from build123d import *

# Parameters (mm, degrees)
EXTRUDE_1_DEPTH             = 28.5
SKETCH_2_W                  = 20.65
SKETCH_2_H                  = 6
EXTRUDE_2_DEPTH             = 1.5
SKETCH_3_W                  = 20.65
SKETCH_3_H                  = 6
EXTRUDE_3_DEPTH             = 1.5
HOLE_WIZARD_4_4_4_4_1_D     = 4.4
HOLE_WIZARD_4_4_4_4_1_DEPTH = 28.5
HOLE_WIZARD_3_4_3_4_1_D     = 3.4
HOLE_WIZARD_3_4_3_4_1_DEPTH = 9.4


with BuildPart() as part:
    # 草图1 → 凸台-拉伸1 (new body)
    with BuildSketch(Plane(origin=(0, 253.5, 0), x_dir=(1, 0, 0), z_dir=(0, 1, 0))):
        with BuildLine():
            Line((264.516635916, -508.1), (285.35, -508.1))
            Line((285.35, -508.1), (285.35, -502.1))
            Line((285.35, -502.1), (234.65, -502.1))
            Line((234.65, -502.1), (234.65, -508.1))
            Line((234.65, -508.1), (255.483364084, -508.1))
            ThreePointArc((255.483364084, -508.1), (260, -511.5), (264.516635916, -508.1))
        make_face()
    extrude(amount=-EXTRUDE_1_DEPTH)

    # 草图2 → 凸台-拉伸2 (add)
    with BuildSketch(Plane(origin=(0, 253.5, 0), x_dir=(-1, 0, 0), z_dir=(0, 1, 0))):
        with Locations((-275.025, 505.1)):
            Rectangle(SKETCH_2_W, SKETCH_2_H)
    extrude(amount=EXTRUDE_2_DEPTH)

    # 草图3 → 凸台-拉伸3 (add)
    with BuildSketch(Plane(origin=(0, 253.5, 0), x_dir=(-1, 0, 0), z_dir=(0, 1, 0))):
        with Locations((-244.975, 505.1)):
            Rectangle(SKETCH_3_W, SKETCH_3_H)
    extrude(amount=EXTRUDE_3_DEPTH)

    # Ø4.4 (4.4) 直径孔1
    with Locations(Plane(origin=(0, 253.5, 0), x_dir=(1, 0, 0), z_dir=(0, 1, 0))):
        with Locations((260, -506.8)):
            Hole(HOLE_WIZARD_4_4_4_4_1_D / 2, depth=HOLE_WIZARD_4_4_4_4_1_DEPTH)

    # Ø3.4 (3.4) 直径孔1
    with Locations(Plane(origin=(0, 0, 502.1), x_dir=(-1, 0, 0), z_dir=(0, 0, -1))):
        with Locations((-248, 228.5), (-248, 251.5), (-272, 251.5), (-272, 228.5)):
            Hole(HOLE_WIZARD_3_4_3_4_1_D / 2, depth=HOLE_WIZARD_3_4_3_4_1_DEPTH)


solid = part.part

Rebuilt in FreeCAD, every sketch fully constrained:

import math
import FreeCAD as App
import Part
import Sketcher

V = App.Vector


def add_polygon(sketch, points):
    """Adds a closed chain of lines whose ends are joined by coincident constraints."""
    first, n = sketch.GeometryCount, len(points)
    for a, b in zip(points, points[1:] + points[:1]):
        sketch.addGeometry(Part.LineSegment(App.Vector(*a, 0), App.Vector(*b, 0)), False)
    for i in range(n):
        sketch.addConstraint(Sketcher.Constraint("Coincident", first + i, 2, first + (i + 1) % n, 1))

doc = App.newDocument("Part")
body = doc.addObject("PartDesign::Body", "Body")

sketch1 = body.newObject("Sketcher::SketchObject", "Sketch")
sketch1.AttachmentSupport = (doc.getObject("XZ_Plane"), [""])
sketch1.MapMode = "FlatFace"
sketch1.AttachmentOffset = App.Placement(V(0, 0, -253.5), App.Rotation())
sketch1.addGeometry([
    Part.LineSegment(V(264.5, 508.1, 0), V(285.4, 508.1, 0)),
    Part.LineSegment(V(285.4, 508.1, 0), V(285.4, 502.1, 0)),
    Part.LineSegment(V(285.4, 502.1, 0), V(234.7, 502.1, 0)),
    Part.LineSegment(V(234.7, 502.1, 0), V(234.7, 508.1, 0)),
    Part.LineSegment(V(234.7, 508.1, 0), V(255.5, 508.1, 0)),
    Part.ArcOfCircle(Part.Circle(V(260, 506.8, 0), V(0, 0, 1), 4.7), math.radians(16), math.radians(164)),
], False)
sketch1.addConstraint([
    Sketcher.Constraint("Coincident", 0, 2, 1, 1),
    Sketcher.Constraint("Coincident", 1, 2, 2, 1),
    Sketcher.Constraint("Coincident", 2, 2, 3, 1),
    Sketcher.Constraint("Coincident", 3, 2, 4, 1),
    Sketcher.Constraint("Coincident", 4, 2, 5, 2),
    Sketcher.Constraint("Coincident", 5, 1, 0, 1),
    Sketcher.Constraint("Horizontal", 0),
    Sketcher.Constraint("Vertical", 1),
    Sketcher.Constraint("Horizontal", 2),
    Sketcher.Constraint("Vertical", 3),
    Sketcher.Constraint("Horizontal", 4),
    Sketcher.Constraint("Horizontal", 0, 2, 3, 2),
    Sketcher.Constraint("Equal", 0, 4),
    Sketcher.Constraint("Radius", 5, 4.7),
    Sketcher.Constraint("DistanceY", 1, 2, 1, 1, 6.0),
    Sketcher.Constraint("DistanceX", 2, 2, 2, 1, 50.7),
    Sketcher.Constraint("DistanceX", -1, 1, 5, 3, 260.0),
    Sketcher.Constraint("DistanceY", -1, 1, 5, 3, 506.8),
    Sketcher.Constraint("DistanceY", -1, 1, 0, 2, 508.1),
])
pad1 = body.newObject("PartDesign::Pad", "Pad")
pad1.Profile = sketch1
pad1.Length = 28.5

sketch2 = body.newObject("Sketcher::SketchObject", "Sketch001")
sketch2.AttachmentSupport = (doc.getObject("XZ_Plane"), [""])
sketch2.MapMode = "FlatFace"
sketch2.AttachmentOffset = App.Placement(V(0, 0, -253.5), App.Rotation())
add_polygon(sketch2, [(285, 508), (285, 502), (265, 502), (265, 508)])
sketch2.addConstraint([
    Sketcher.Constraint("Vertical", 0),
    Sketcher.Constraint("Horizontal", 1),
    Sketcher.Constraint("Vertical", 2),
    Sketcher.Constraint("Horizontal", 3),
    Sketcher.Constraint("DistanceY", 0, 2, 0, 1, 6.0),
    Sketcher.Constraint("DistanceX", 1, 2, 1, 1, 20.65),
    Sketcher.Constraint("DistanceY", -1, 1, 0, 2, 502.1),
    Sketcher.Constraint("DistanceX", -1, 1, 1, 2, 264.7),
])
pad2 = body.newObject("PartDesign::Pad", "Pad001")
pad2.Profile = sketch2
pad2.Length = 1.5
pad2.Reversed = True

sketch3 = body.newObject("Sketcher::SketchObject", "Sketch002")
sketch3.AttachmentSupport = (doc.getObject("XZ_Plane"), [""])
sketch3.MapMode = "FlatFace"
sketch3.AttachmentOffset = App.Placement(V(0, 0, -253.5), App.Rotation())
add_polygon(sketch3, [(255, 508), (255, 502), (235, 502), (235, 508)])
sketch3.addConstraint([
    Sketcher.Constraint("Vertical", 0),
    Sketcher.Constraint("Horizontal", 1),
    Sketcher.Constraint("Vertical", 2),
    Sketcher.Constraint("Horizontal", 3),
    Sketcher.Constraint("DistanceY", 0, 2, 0, 1, 6.0),
    Sketcher.Constraint("DistanceX", 1, 2, 1, 1, 20.65),
    Sketcher.Constraint("DistanceX", -1, 1, 0, 2, 255.3),
    Sketcher.Constraint("DistanceY", -1, 1, 0, 2, 502.1),
])
pad3 = body.newObject("PartDesign::Pad", "Pad002")
pad3.Profile = sketch3
pad3.Length = 1.5
pad3.Reversed = True

sketch4 = body.newObject("Sketcher::SketchObject", "Sketch003")
sketch4.AttachmentSupport = (doc.getObject("XZ_Plane"), [""])
sketch4.MapMode = "FlatFace"
sketch4.AttachmentOffset = App.Placement(V(0, 0, -253.5), App.Rotation())
sketch4.addGeometry(Part.Circle(V(260, 506.8, 0), V(0, 0, 1), 2.2), False)
sketch4.addConstraint([
    Sketcher.Constraint("Diameter", 0, 4.4),
    Sketcher.Constraint("DistanceX", -1, 1, 0, 3, 260.0),
    Sketcher.Constraint("DistanceY", -1, 1, 0, 3, 506.8),
])
doc.recompute()
hole = body.newObject("PartDesign::Hole", "Hole")
hole.Profile = sketch4
hole.ThreadType = "None"
hole.Diameter = 4.4
hole.DepthType = "Dimension"
hole.Depth = 28.5
hole.DrillPoint = "Flat"
hole.Reversed = True

sketch5 = body.newObject("Sketcher::SketchObject", "Sketch004")
sketch5.AttachmentSupport = (doc.getObject("XY_Plane"), [""])
sketch5.MapMode = "FlatFace"
sketch5.AttachmentOffset = App.Placement(V(0, 0, 502.1), App.Rotation())
sketch5.addGeometry([
    Part.Circle(V(248, 228.5, 0), V(0, 0, 1), 1.7),
    Part.Circle(V(248, 251.5, 0), V(0, 0, 1), 1.7),
    Part.Circle(V(272, 251.5, 0), V(0, 0, 1), 1.7),
    Part.Circle(V(272, 228.5, 0), V(0, 0, 1), 1.7),
], False)
sketch5.addConstraint([
    Sketcher.Constraint("Equal", 0, 1),
    Sketcher.Constraint("Equal", 1, 2),
    Sketcher.Constraint("Equal", 2, 3),
    Sketcher.Constraint("Horizontal", 1, 3, 2, 3),
    Sketcher.Constraint("Horizontal", 0, 3, 3, 3),
    Sketcher.Constraint("Vertical", 0, 3, 1, 3),
    Sketcher.Constraint("Vertical", 2, 3, 3, 3),
    Sketcher.Constraint("Diameter", 0, 3.4),
    Sketcher.Constraint("DistanceX", -1, 1, 0, 3, 248.0),
    Sketcher.Constraint("DistanceX", -1, 1, 2, 3, 272.0),
    Sketcher.Constraint("DistanceY", 0, 3, 1, 3, 23.0),
    Sketcher.Constraint("DistanceY", -1, 1, 0, 3, 228.5),
])
doc.recompute()
hole2 = body.newObject("PartDesign::Hole", "Hole001")
hole2.Profile = sketch5
hole2.ThreadType = "None"
hole2.Diameter = 3.4
hole2.DepthType = "Dimension"
hole2.Depth = 9.4
hole2.DrillPoint = "Flat"
hole2.Reversed = True

doc.recompute()
